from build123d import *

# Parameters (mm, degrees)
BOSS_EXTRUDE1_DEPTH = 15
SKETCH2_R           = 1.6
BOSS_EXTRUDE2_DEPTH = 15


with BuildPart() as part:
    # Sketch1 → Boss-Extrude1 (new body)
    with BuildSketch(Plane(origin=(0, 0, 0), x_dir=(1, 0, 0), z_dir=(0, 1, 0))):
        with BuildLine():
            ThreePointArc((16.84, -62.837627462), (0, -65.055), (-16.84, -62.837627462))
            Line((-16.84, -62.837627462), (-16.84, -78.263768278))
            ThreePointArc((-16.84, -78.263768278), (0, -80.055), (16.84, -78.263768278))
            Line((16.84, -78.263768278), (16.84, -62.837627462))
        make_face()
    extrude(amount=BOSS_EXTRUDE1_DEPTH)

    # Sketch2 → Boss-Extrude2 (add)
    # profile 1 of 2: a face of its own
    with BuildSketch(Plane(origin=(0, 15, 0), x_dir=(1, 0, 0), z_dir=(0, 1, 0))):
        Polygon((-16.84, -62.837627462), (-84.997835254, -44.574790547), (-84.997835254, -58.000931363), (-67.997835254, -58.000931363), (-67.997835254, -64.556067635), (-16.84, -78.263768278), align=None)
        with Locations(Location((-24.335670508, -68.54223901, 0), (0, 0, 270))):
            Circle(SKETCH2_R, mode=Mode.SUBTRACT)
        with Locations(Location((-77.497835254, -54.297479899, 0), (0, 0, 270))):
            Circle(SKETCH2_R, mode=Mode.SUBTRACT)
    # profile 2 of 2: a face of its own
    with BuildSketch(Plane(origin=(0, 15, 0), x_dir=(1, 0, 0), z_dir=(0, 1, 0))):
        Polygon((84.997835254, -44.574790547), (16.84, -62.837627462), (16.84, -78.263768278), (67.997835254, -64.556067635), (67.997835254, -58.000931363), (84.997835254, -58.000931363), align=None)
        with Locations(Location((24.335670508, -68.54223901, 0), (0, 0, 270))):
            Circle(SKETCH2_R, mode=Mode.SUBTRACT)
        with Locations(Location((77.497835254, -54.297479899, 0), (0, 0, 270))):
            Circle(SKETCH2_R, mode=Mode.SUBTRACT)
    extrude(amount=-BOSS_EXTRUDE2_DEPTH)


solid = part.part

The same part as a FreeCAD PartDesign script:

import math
import FreeCAD as App
import Part
import Sketcher
from FreeCAD import Vector
Q = App.Units.Quantity


def add_polygon(sketch, points):
    """Adds a closed chain of lines whose ends are joined by coincident constraints."""
    first, n = sketch.GeometryCount, len(points)
    for a, b in zip(points, points[1:] + points[:1]):
        sketch.addGeometry(Part.LineSegment(App.Vector(*a, 0), App.Vector(*b, 0)), False)
    for i in range(n):
        sketch.addConstraint(Sketcher.Constraint("Coincident", first + i, 2, first + (i + 1) % n, 1))

doc = App.newDocument("Part")
body = doc.addObject("PartDesign::Body", "Body")

# Sketch on XZ plane
sketch1 = doc.addObject("Sketcher::SketchObject", "Sketch")
body.addObject(sketch1)
sketch1.AttachmentSupport = (doc.XZ_Plane, [""])
sketch1.MapMode = "FlatFace"
sketch1.addGeometry(Part.ArcOfCircle(Part.Circle(Vector(0, 0, 0), Vector(0, 0, 1), 65), math.radians(75), math.radians(105)), False)
sketch1.addGeometry(Part.LineSegment(Vector(-17, 63, 0), Vector(-17, 78, 0)), False)
sketch1.addGeometry(Part.ArcOfCircle(Part.Circle(Vector(0, 0, 0), Vector(0, 0, 1), 80), math.radians(78), math.radians(102)), False)
sketch1.addGeometry(Part.LineSegment(Vector(17, 78, 0), Vector(17, 63, 0)), False)
sketch1.addConstraint(Sketcher.Constraint("Coincident", 0, 2, 1, 1))
sketch1.addConstraint(Sketcher.Constraint("Coincident", 1, 2, 2, 2))
sketch1.addConstraint(Sketcher.Constraint("Coincident", 2, 1, 3, 1))
sketch1.addConstraint(Sketcher.Constraint("Coincident", 3, 2, 0, 1))
sketch1.addConstraint(Sketcher.Constraint("Vertical", 1))
sketch1.addConstraint(Sketcher.Constraint("Vertical", 3))
sketch1.addConstraint(Sketcher.Constraint("Coincident", 0, 3, -1, 1))
sketch1.addConstraint(Sketcher.Constraint("Coincident", 2, 3, -1, 1))
sketch1.addConstraint(Sketcher.Constraint("Horizontal", 1, 2, 2, 1))
sketch1.addConstraint(Sketcher.Constraint("Radius", 0, Q("65.055 mm")))
sketch1.addConstraint(Sketcher.Constraint("Radius", 2, Q("80.055 mm")))
sketch1.addConstraint(Sketcher.Constraint("DistanceX", 0, 2, -1, 1, Q("16.84 mm")))
pad1 = doc.addObject("PartDesign::Pad", "Pad")
body.addObject(pad1)
pad1.Profile = sketch1
pad1.Length = 15
pad1.Reversed = True

# Sketch on XZ plane
sketch2 = doc.addObject("Sketcher::SketchObject", "Sketch001")
body.addObject(sketch2)
sketch2.AttachmentSupport = (doc.XZ_Plane, [""])
sketch2.MapMode = "FlatFace"
sketch2.AttachmentOffset = App.Placement(Vector(0, 0, -15), App.Rotation())
add_polygon(sketch2, [(-16.8, 62.8), (-85, 44.6), (-85, 58), (-68, 58), (-68, 64.6), (-16.8, 78.3)])  # lines 0-5
sketch2.addGeometry(Part.Circle(Vector(-24.3, 68.5, 0), Vector(0, 0, 1), 1.6), False)  # 6
sketch2.addGeometry(Part.Circle(Vector(-77.5, 54.3, 0), Vector(0, 0, 1), 1.6), False)  # 7
add_polygon(sketch2, [(85, 44.6), (16.8, 62.8), (16.8, 78.3), (68, 64.6), (68, 58), (85, 58)])  # lines 8-13
sketch2.addGeometry(Part.Circle(Vector(24.3, 68.5, 0), Vector(0, 0, 1), 1.6), False)  # 14
sketch2.addGeometry(Part.Circle(Vector(77.5, 54.3, 0), Vector(0, 0, 1), 1.6), False)  # 15
sketch2.addConstraint(Sketcher.Constraint("Vertical", 1))
sketch2.addConstraint(Sketcher.Constraint("Horizontal", 2))
sketch2.addConstraint(Sketcher.Constraint("Vertical", 3))
sketch2.addConstraint(Sketcher.Constraint("Vertical", 5))
sketch2.addConstraint(Sketcher.Constraint("Vertical", 9))
sketch2.addConstraint(Sketcher.Constraint("Vertical", 11))
sketch2.addConstraint(Sketcher.Constraint("Horizontal", 12))
sketch2.addConstraint(Sketcher.Constraint("Vertical", 13))
sketch2.addConstraint(Sketcher.Constraint("Equal", 6, 7))
sketch2.addConstraint(Sketcher.Constraint("Equal", 7, 14))
sketch2.addConstraint(Sketcher.Constraint("Equal", 14, 15))
sketch2.addConstraint(Sketcher.Constraint("Symmetric", 6, 3, 14, 3, -2))
sketch2.addConstraint(Sketcher.Constraint("Symmetric", 7, 3, 15, 3, -2))
sketch2.addConstraint(Sketcher.Constraint("Symmetric", 5, 2, 8, 2, -2))
sketch2.addConstraint(Sketcher.Constraint("Symmetric", 3, 2, 10, 2, -2))
sketch2.addConstraint(Sketcher.Constraint("Symmetric", 1, 2, 12, 2, -2))
sketch2.addConstraint(Sketcher.Constraint("Parallel", 0, 4))
sketch2.addConstraint(Sketcher.Constraint("Parallel", 8, 10))
sketch2.addConstraint(Sketcher.Constraint("Horizontal", 4, 2, 9, 2))
sketch2.addConstraint(Sketcher.Constraint("Diameter", 6, Q("3.2 mm")))
sketch2.addConstraint(Sketcher.Constraint("DistanceX", 2, 1, 2, 2, Q("17 mm")))
sketch2.addConstraint(Sketcher.Constraint("Angle", 0, Q("-165 deg")))
sketch2.addConstraint(Sketcher.Constraint("DistanceX", 0, 2, 7, 3, Q("7.5 mm")))
sketch2.addConstraint(Sketcher.Constraint("DistanceX", 4, 2, -1, 1, Q("16.84 mm")))
sketch2.addConstraint(Sketcher.Constraint("DistanceY", 1, 1, 1, 2, Q("13.426141 mm")))
sketch2.addConstraint(Sketcher.Constraint("DistanceY", 5, 2, 5, 1, Q("15.426141 mm")))
sketch2.addConstraint(Sketcher.Constraint("DistanceY", 3, 2, 4, 2, Q("13.707701 mm")))
sketch2.addConstraint(Sketcher.Constraint("DistanceX", 6, 3, -1, 1, Q("24.335671 mm")))
sketch2.addConstraint(Sketcher.Constraint("DistanceY", -1, 1, 6, 3, Q("68.542239 mm")))
sketch2.addConstraint(Sketcher.Constraint("DistanceY", -1, 1, 7, 3, Q("54.29748 mm")))
sketch2.addConstraint(Sketcher.Constraint("DistanceY", -1, 1, 0, 2, Q("44.574791 mm")))
pad2 = doc.addObject("PartDesign::Pad", "Pad001")
body.addObject(pad2)
pad2.Profile = sketch2
pad2.Length = 15

doc.recompute()
